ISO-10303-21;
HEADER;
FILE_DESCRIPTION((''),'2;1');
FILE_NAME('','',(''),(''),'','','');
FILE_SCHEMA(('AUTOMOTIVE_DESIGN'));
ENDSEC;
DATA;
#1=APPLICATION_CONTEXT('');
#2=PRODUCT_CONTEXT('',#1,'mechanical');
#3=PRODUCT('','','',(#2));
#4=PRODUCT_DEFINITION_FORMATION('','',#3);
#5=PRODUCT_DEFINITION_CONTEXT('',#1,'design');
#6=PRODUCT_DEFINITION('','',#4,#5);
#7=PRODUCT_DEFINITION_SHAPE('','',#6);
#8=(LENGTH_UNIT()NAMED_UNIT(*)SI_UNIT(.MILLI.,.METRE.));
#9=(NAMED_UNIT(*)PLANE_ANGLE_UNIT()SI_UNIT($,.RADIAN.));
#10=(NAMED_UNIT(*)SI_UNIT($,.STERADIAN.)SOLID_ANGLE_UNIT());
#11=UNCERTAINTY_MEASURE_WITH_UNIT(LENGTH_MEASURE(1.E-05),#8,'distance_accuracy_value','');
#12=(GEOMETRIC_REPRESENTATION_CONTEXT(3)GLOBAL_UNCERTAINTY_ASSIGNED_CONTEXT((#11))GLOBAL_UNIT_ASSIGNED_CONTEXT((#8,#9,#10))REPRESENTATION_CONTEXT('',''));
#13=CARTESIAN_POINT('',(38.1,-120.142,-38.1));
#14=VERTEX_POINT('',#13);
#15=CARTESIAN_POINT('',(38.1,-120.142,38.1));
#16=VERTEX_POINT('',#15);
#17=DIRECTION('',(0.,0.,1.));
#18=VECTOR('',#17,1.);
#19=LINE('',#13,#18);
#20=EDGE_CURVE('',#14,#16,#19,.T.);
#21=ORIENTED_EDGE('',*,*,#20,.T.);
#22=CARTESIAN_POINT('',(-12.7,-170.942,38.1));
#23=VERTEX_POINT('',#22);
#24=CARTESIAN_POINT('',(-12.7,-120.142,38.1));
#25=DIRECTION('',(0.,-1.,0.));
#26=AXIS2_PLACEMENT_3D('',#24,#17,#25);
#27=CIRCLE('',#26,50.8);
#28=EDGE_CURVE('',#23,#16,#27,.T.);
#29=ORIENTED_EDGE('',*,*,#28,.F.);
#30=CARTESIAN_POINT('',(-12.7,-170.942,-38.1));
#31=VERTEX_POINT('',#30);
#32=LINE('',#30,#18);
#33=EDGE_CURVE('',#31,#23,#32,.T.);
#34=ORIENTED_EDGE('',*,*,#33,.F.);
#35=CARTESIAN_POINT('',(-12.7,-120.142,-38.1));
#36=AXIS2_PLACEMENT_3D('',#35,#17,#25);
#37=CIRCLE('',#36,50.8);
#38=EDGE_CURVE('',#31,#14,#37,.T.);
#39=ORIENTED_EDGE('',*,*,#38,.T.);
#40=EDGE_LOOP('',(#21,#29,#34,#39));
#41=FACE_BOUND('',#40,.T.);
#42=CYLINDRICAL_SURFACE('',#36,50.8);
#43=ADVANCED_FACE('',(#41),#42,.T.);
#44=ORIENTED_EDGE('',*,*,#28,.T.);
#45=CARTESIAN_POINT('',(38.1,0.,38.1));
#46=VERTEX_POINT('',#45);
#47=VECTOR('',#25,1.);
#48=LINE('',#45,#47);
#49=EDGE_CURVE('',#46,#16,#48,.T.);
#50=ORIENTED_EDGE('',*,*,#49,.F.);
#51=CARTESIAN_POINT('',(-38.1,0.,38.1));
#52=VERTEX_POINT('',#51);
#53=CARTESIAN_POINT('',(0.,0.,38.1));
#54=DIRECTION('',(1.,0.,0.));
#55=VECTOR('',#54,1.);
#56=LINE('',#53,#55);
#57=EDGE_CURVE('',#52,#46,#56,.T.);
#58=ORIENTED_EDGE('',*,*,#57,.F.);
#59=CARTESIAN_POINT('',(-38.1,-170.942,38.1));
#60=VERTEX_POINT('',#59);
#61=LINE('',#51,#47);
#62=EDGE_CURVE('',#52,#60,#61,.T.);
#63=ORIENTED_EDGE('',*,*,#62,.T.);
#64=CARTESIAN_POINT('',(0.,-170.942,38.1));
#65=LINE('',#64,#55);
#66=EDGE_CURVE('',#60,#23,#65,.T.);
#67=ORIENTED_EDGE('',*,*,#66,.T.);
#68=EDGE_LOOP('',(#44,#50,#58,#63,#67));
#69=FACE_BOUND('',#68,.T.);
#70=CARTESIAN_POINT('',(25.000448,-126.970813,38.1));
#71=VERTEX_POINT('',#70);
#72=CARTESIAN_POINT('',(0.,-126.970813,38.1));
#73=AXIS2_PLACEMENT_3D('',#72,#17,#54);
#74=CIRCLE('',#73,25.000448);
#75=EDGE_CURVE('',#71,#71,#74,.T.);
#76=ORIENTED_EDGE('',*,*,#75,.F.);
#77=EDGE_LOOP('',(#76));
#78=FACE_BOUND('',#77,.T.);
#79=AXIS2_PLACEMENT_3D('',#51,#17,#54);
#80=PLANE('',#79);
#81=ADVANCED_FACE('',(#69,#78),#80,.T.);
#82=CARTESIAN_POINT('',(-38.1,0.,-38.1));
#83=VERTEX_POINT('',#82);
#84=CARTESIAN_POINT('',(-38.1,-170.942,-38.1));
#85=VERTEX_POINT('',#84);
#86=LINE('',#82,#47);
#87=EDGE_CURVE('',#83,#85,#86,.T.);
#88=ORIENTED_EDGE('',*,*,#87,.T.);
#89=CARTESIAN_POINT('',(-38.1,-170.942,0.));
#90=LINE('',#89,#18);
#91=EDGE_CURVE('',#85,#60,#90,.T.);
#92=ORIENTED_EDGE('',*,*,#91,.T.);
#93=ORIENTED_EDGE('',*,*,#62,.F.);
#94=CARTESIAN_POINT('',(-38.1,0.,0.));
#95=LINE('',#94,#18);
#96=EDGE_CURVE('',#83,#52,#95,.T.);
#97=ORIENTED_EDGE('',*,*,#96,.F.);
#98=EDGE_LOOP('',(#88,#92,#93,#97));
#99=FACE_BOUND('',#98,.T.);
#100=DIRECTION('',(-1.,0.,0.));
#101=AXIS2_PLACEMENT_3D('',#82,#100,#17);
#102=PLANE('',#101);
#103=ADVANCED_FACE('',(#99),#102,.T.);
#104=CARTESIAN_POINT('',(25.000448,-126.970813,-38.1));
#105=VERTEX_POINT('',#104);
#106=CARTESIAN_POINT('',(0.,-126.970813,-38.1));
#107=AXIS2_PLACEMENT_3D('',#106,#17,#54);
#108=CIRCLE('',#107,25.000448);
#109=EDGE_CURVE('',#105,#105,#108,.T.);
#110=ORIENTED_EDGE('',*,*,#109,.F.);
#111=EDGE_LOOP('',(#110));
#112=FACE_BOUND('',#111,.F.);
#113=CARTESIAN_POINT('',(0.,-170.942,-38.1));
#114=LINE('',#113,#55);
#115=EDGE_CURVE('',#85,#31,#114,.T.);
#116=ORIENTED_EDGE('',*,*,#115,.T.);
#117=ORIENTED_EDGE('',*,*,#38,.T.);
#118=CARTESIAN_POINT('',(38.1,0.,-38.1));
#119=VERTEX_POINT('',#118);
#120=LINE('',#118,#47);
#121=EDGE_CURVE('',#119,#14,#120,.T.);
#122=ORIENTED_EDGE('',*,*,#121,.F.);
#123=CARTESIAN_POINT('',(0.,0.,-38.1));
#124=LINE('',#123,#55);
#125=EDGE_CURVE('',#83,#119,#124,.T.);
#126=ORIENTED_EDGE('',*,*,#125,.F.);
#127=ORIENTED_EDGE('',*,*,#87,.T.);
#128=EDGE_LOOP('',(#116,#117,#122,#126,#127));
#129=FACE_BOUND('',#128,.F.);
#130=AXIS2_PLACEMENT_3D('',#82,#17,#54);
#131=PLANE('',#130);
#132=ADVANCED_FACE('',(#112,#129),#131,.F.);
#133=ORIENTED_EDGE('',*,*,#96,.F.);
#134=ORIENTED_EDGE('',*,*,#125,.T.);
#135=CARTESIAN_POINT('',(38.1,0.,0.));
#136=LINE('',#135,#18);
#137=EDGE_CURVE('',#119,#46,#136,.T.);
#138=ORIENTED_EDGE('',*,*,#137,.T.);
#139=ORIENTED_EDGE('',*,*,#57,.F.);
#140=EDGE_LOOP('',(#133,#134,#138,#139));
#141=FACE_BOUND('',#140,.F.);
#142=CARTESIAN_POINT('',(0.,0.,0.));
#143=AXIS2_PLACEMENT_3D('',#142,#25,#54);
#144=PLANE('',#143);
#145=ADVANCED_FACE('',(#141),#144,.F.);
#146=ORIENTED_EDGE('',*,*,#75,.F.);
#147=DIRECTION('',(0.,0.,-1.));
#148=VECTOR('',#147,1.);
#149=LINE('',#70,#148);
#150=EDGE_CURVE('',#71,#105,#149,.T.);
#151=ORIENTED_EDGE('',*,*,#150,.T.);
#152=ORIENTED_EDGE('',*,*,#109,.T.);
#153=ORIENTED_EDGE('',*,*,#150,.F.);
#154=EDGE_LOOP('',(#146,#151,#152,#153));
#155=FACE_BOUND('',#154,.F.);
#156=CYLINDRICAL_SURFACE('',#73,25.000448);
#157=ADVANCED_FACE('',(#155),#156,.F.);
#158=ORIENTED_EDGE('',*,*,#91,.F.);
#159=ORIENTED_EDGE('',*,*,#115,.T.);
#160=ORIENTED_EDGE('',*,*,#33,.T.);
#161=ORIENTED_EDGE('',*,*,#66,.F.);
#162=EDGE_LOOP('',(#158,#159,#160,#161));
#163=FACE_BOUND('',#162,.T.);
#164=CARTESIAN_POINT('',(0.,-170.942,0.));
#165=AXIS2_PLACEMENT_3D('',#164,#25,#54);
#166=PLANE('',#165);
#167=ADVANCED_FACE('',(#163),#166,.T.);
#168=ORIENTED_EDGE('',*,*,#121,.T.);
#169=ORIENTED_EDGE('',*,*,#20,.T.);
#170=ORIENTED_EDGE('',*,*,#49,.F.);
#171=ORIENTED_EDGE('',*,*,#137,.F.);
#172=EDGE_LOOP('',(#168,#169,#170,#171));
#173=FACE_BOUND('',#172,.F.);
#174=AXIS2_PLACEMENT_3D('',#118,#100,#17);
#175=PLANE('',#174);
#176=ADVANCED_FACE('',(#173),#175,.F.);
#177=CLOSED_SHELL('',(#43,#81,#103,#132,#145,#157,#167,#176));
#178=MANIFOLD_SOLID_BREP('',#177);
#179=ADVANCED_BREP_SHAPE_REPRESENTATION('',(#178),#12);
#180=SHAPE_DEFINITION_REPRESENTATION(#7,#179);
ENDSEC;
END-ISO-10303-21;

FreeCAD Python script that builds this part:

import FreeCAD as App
import Part
import Sketcher

V = App.Vector
Q = App.Units.Quantity


def edges_at(feature, points):
    """Names of the edges that pass closest to the given points."""
    edges = feature.Shape.Edges
    near = lambda p: min(range(len(edges)), key=lambda i: edges[i].distToShape(Part.Vertex(*p))[0])
    return sorted({f"Edge{near(p) + 1}" for p in points})

doc = App.newDocument("Part")
body = doc.addObject("PartDesign::Body", "Body")

# Sketch on XZ plane
sketch1 = body.newObject("Sketcher::SketchObject", "Sketch")
sketch1.AttachmentSupport = (doc.getObject("XZ_Plane"), [""])
sketch1.MapMode = "FlatFace"
sketch1.addGeometry([
    Part.LineSegment(V(-38, 38, 0), V(-38, -38, 0)),
    Part.LineSegment(V(-38, -38, 0), V(38, -38, 0)),
    Part.LineSegment(V(38, -38, 0), V(38, 38, 0)),
    Part.LineSegment(V(38, 38, 0), V(-38, 38, 0)),
], False)
sketch1.addConstraint([
    Sketcher.Constraint("Coincident", 0, 2, 1, 1),
    Sketcher.Constraint("Coincident", 1, 2, 2, 1),
    Sketcher.Constraint("Coincident", 2, 2, 3, 1),
    Sketcher.Constraint("Coincident", 3, 2, 0, 1),
    Sketcher.Constraint("Vertical", 0),
    Sketcher.Constraint("Horizontal", 1),
    Sketcher.Constraint("Vertical", 2),
    Sketcher.Constraint("Horizontal", 3),
    Sketcher.Constraint("Symmetric", 0, 2, 2, 2, -1, 1),
    Sketcher.Constraint("Equal", 3, 0),
    Sketcher.Constraint("DistanceX", 1, 1, 1, 2, Q("3 in")),
])
pad1 = body.newObject("PartDesign::Pad", "Pad")
pad1.Profile = sketch1
pad1.Length = Q("6.73 in")

# Sketch on XY plane
sketch2 = body.newObject("Sketcher::SketchObject", "Sketch001")
sketch2.AttachmentSupport = (doc.getObject("XY_Plane"), [""])
sketch2.MapMode = "FlatFace"
sketch2.AttachmentOffset = App.Placement(V(0, 0, 1.5 * 25.4), App.Rotation())
sketch2.addGeometry(Part.Circle(V(0, -127, 0), V(0, 0, 1), 25), False)
sketch2.addConstraint([
    Sketcher.Constraint("PointOnObject", 0, 3, -2),
    Sketcher.Constraint("Diameter", 0, 50.000896),
    Sketcher.Constraint("DistanceY", 0, 3, -1, 1, 126.970813),
])
pocket1 = body.newObject("PartDesign::Pocket", "Pocket")
pocket1.Profile = sketch2
pocket1.Type = "ThroughAll"
doc.recompute()

fillet = body.newObject("PartDesign::Fillet", "Fillet")
fillet.Base = (pocket1, edges_at(pocket1, [(38.1, -170.942, 0)]))
fillet.Radius = Q("2 in")

doc.recompute()
